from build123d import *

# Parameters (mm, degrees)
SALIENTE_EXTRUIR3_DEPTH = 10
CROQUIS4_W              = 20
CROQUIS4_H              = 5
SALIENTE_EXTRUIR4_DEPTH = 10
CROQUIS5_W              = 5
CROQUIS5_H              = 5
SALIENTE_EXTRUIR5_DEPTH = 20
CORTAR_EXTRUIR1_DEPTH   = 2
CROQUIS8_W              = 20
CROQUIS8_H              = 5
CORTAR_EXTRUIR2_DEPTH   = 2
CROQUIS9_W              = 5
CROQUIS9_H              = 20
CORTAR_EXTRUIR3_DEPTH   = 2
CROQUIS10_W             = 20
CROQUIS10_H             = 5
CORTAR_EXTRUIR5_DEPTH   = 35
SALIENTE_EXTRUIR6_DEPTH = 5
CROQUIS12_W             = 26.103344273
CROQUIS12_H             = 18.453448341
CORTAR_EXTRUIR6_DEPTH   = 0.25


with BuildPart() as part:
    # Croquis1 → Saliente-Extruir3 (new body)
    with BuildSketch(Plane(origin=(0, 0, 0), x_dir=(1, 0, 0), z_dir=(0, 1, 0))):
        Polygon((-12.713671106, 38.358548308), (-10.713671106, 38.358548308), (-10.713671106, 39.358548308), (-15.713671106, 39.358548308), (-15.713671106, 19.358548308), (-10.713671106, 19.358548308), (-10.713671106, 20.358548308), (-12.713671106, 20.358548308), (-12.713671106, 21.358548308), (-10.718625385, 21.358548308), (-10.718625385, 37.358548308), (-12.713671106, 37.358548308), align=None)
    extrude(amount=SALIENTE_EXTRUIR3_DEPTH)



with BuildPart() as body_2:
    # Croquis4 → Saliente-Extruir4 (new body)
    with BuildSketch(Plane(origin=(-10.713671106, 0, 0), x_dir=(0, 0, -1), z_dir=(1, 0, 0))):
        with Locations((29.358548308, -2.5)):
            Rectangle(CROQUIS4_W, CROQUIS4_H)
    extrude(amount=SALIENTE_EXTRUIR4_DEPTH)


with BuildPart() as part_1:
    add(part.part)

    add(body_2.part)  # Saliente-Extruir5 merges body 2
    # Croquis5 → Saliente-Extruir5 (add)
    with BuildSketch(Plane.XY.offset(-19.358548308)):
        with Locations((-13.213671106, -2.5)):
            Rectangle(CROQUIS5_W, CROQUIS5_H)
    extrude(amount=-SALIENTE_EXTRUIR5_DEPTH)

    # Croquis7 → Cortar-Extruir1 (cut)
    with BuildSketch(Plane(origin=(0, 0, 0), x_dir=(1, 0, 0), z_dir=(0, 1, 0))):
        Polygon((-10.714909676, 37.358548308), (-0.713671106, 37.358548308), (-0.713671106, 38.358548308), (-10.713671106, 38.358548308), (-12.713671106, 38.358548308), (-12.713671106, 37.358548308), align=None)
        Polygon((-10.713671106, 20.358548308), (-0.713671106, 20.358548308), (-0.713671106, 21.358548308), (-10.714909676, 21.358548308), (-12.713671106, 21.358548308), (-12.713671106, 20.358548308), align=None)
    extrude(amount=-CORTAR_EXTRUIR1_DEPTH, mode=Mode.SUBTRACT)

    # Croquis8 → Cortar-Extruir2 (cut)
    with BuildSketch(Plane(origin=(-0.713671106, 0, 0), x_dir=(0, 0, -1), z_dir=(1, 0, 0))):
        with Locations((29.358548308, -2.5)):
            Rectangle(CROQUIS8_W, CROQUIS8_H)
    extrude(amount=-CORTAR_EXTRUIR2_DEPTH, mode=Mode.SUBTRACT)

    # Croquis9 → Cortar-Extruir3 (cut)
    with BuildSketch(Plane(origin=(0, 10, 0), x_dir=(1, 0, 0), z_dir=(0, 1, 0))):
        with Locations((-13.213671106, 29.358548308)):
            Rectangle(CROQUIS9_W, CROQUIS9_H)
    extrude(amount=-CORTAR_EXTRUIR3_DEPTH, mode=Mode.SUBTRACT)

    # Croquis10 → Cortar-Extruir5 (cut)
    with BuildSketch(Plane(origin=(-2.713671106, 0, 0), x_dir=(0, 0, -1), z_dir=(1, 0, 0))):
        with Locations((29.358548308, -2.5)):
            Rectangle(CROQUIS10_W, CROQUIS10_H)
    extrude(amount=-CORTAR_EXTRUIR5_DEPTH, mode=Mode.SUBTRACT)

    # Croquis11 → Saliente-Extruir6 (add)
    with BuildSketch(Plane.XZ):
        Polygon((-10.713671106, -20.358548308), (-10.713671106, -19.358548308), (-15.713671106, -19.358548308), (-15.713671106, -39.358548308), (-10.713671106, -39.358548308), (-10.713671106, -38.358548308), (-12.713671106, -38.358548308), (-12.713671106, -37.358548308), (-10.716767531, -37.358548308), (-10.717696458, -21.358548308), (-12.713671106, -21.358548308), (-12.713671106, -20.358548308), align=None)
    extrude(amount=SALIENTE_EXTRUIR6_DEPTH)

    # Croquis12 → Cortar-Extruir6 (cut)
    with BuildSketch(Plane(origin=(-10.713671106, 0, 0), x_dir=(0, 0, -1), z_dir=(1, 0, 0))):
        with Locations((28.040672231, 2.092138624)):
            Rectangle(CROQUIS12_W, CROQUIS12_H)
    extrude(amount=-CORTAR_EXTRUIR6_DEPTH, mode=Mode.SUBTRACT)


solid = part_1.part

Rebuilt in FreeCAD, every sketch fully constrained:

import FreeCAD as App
import Part
import Sketcher
Q = App.Units.Quantity

doc = App.newDocument("Part")
body = doc.addObject("PartDesign::Body", "Body")

# Sketch on XZ plane
sketch1 = body.newObject("Sketcher::SketchObject", "Sketch")
sketch1.AttachmentSupport = (doc.getObject("XZ_Plane"), [""])
sketch1.MapMode = "FlatFace"
sketch1.addGeometry([
    Part.LineSegment(App.Vector(-12.713671, -38.358548, 0), App.Vector(-10.713671, -38.358548, 0)),  # 0
    Part.LineSegment(App.Vector(-10.713671, -38.358548, 0), App.Vector(-10.713671, -39.358548, 0)),  # 1
    Part.LineSegment(App.Vector(-10.713671, -39.358548, 0), App.Vector(-15.713671, -39.358548, 0)),  # 2
    Part.LineSegment(App.Vector(-15.713671, -39.358548, 0), App.Vector(-15.713671, -19.358548, 0)),  # 3
    Part.LineSegment(App.Vector(-15.713671, -19.358548, 0), App.Vector(-10.713671, -19.358548, 0)),  # 4
    Part.LineSegment(App.Vector(-10.713671, -19.358548, 0), App.Vector(-10.713671, -20.358548, 0)),  # 5
    Part.LineSegment(App.Vector(-10.713671, -20.358548, 0), App.Vector(-12.713671, -20.358548, 0)),  # 6
    Part.LineSegment(App.Vector(-12.713671, -20.358548, 0), App.Vector(-12.713671, -21.358548, 0)),  # 7
    Part.LineSegment(App.Vector(-12.713671, -21.358548, 0), App.Vector(-10.718625, -21.358548, 0)),  # 8
    Part.LineSegment(App.Vector(-10.718625, -21.358548, 0), App.Vector(-10.718625, -37.358548, 0)),  # 9
    Part.LineSegment(App.Vector(-10.718625, -37.358548, 0), App.Vector(-12.713671, -37.358548, 0)),  # 10
    Part.LineSegment(App.Vector(-12.713671, -37.358548, 0), App.Vector(-12.713671, -38.358548, 0)),  # 11
], False)
sketch1.addConstraint([
    Sketcher.Constraint("Coincident", 0, 2, 1, 1),
    Sketcher.Constraint("Coincident", 1, 2, 2, 1),
    Sketcher.Constraint("Coincident", 2, 2, 3, 1),
    Sketcher.Constraint("Coincident", 3, 2, 4, 1),
    Sketcher.Constraint("Coincident", 4, 2, 5, 1),
    Sketcher.Constraint("Coincident", 5, 2, 6, 1),
    Sketcher.Constraint("Coincident", 6, 2, 7, 1),
    Sketcher.Constraint("Coincident", 7, 2, 8, 1),
    Sketcher.Constraint("Coincident", 8, 2, 9, 1),
    Sketcher.Constraint("Coincident", 9, 2, 10, 1),
    Sketcher.Constraint("Coincident", 10, 2, 11, 1),
    Sketcher.Constraint("Coincident", 11, 2, 0, 1),
    Sketcher.Constraint("Horizontal", 0),
    Sketcher.Constraint("Vertical", 1),
    Sketcher.Constraint("Horizontal", 2),
    Sketcher.Constraint("Vertical", 3),
    Sketcher.Constraint("Horizontal", 4),
    Sketcher.Constraint("Vertical", 5),
    Sketcher.Constraint("Horizontal", 6),
    Sketcher.Constraint("Vertical", 7),
    Sketcher.Constraint("Horizontal", 8),
    Sketcher.Constraint("Vertical", 9),
    Sketcher.Constraint("Horizontal", 10),
    Sketcher.Constraint("Vertical", 11),
    Sketcher.Constraint("Vertical", 1, 2, 4, 2),
    Sketcher.Constraint("Vertical", 7, 2, 10, 2),
    Sketcher.Constraint("Equal", 1, 5),
    Sketcher.Constraint("Equal", 5, 7),
    Sketcher.Constraint("Equal", 7, 11),
    Sketcher.Constraint("DistanceX", 0, 1, 0, 2, Q("2 mm")),
    Sketcher.Constraint("DistanceX", 2, 2, 2, 1, Q("5 mm")),
    Sketcher.Constraint("DistanceY", 1, 2, 1, 1, Q("1 mm")),
    Sketcher.Constraint("DistanceY", 3, 1, 3, 2, Q("20 mm")),
    Sketcher.Constraint("DistanceX", 8, 1, 8, 2, Q("1.995046 mm")),
    Sketcher.Constraint("DistanceX", 0, 2, -1, 1, Q("10.713671 mm")),
    Sketcher.Constraint("DistanceY", 0, 2, -1, 1, Q("38.358548 mm")),
])
pad1 = body.newObject("PartDesign::Pad", "Pad")
pad1.Profile = sketch1
pad1.Length = 10
pad1.Reversed = True
body2 = doc.addObject("PartDesign::Body", "Body001")

# Sketch on YZ plane
sketch2 = body2.newObject("Sketcher::SketchObject", "Sketch001")
sketch2.AttachmentSupport = (doc.getObject("YZ_Plane001"), [""])
sketch2.MapMode = "FlatFace"
sketch2.AttachmentOffset = App.Placement(App.Vector(0, 0, -10.713671), App.Rotation())
sketch2.addGeometry([
    Part.LineSegment(App.Vector(0, -19.358548, 0), App.Vector(-5, -19.358548, 0)),
    Part.LineSegment(App.Vector(-5, -19.358548, 0), App.Vector(-5, -39.358548, 0)),
    Part.LineSegment(App.Vector(-5, -39.358548, 0), App.Vector(0, -39.358548, 0)),
    Part.LineSegment(App.Vector(0, -39.358548, 0), App.Vector(0, -19.358548, 0)),
], False)
sketch2.addConstraint([
    Sketcher.Constraint("Coincident", 0, 2, 1, 1),
    Sketcher.Constraint("Coincident", 1, 2, 2, 1),
    Sketcher.Constraint("Coincident", 2, 2, 3, 1),
    Sketcher.Constraint("Coincident", 3, 2, 0, 1),
    Sketcher.Constraint("Horizontal", 0),
    Sketcher.Constraint("Vertical", 1),
    Sketcher.Constraint("Horizontal", 2),
    Sketcher.Constraint("Vertical", 3),
    Sketcher.Constraint("PointOnObject", 2, 2, -2),
    Sketcher.Constraint("DistanceX", 0, 2, 0, 1, Q("5 mm")),
    Sketcher.Constraint("DistanceY", 1, 2, 1, 1, Q("20 mm")),
    Sketcher.Constraint("DistanceY", 0, 2, -1, 1, Q("19.358548 mm")),
])
pad2 = body2.newObject("PartDesign::Pad", "Pad001")
pad2.Profile = sketch2
pad2.Length = 10
body.AllowCompound = True
doc.recompute()

boolean = body.newObject("PartDesign::Boolean", "Boolean")
boolean.Type = "Fuse"
boolean.addObjects([body2])

# Sketch on XY plane
sketch3 = body.newObject("Sketcher::SketchObject", "Sketch002")
sketch3.AttachmentSupport = (doc.getObject("XY_Plane"), [""])
sketch3.MapMode = "FlatFace"
sketch3.AttachmentOffset = App.Placement(App.Vector(0, 0, -19.358548), App.Rotation())
sketch3.addGeometry([
    Part.LineSegment(App.Vector(-15.713671, 0, 0), App.Vector(-15.713671, -5, 0)),
    Part.LineSegment(App.Vector(-15.713671, -5, 0), App.Vector(-10.713671, -5, 0)),
    Part.LineSegment(App.Vector(-10.713671, -5, 0), App.Vector(-10.713671, 0, 0)),
    Part.LineSegment(App.Vector(-10.713671, 0, 0), App.Vector(-15.713671, 0, 0)),
], False)
sketch3.addConstraint([
    Sketcher.Constraint("Coincident", 0, 2, 1, 1),
    Sketcher.Constraint("Coincident", 1, 2, 2, 1),
    Sketcher.Constraint("Coincident", 2, 2, 3, 1),
    Sketcher.Constraint("Coincident", 3, 2, 0, 1),
    Sketcher.Constraint("Vertical", 0),
    Sketcher.Constraint("Horizontal", 1),
    Sketcher.Constraint("Vertical", 2),
    Sketcher.Constraint("Horizontal", 3),
    Sketcher.Constraint("PointOnObject", 2, 2, -1),
    Sketcher.Constraint("Equal", 3, 0),
    Sketcher.Constraint("DistanceX", 1, 1, 1, 2, Q("5 mm")),
    Sketcher.Constraint("DistanceX", 0, 2, -1, 1, Q("15.713671 mm")),
])
pad3 = body.newObject("PartDesign::Pad", "Pad002")
pad3.Profile = sketch3
pad3.Length = 20
pad3.Reversed = True

# Sketch on XZ plane
sketch4 = body.newObject("Sketcher::SketchObject", "Sketch003")
sketch4.AttachmentSupport = (doc.getObject("XZ_Plane"), [""])
sketch4.MapMode = "FlatFace"
sketch4.addGeometry([
    Part.LineSegment(App.Vector(-0.713671, -37.358548, 0), App.Vector(-0.713671, -38.358548, 0)),  # 0
    Part.LineSegment(App.Vector(-0.713671, -38.358548, 0), App.Vector(-12.713671, -38.358548, 0)),  # 1
    Part.LineSegment(App.Vector(-12.713671, -38.358548, 0), App.Vector(-12.713671, -37.358548, 0)),  # 2
    Part.LineSegment(App.Vector(-12.713671, -37.358548, 0), App.Vector(-0.713671, -37.358548, 0)),  # 3
    Part.LineSegment(App.Vector(-0.713671, -20.358548, 0), App.Vector(-0.713671, -21.358548, 0)),  # 4
    Part.LineSegment(App.Vector(-0.713671, -21.358548, 0), App.Vector(-12.713671, -21.358548, 0)),  # 5
    Part.LineSegment(App.Vector(-12.713671, -21.358548, 0), App.Vector(-12.713671, -20.358548, 0)),  # 6
    Part.LineSegment(App.Vector(-12.713671, -20.358548, 0), App.Vector(-0.713671, -20.358548, 0)),  # 7
], False)
sketch4.addConstraint([
    Sketcher.Constraint("Coincident", 0, 2, 1, 1),
    Sketcher.Constraint("Coincident", 1, 2, 2, 1),
    Sketcher.Constraint("Coincident", 2, 2, 3, 1),
    Sketcher.Constraint("Coincident", 3, 2, 0, 1),
    Sketcher.Constraint("Coincident", 4, 2, 5, 1),
    Sketcher.Constraint("Coincident", 5, 2, 6, 1),
    Sketcher.Constraint("Coincident", 6, 2, 7, 1),
    Sketcher.Constraint("Coincident", 7, 2, 4, 1),
    Sketcher.Constraint("Vertical", 0),
    Sketcher.Constraint("Horizontal", 1),
    Sketcher.Constraint("Vertical", 2),
    Sketcher.Constraint("Horizontal", 3),
    Sketcher.Constraint("Vertical", 4),
    Sketcher.Constraint("Horizontal", 5),
    Sketcher.Constraint("Vertical", 6),
    Sketcher.Constraint("Horizontal", 7),
    Sketcher.Constraint("Vertical", 3, 2, 4, 2),
    Sketcher.Constraint("Vertical", 2, 2, 5, 2),
    Sketcher.Constraint("Equal", 2, 4),
    Sketcher.Constraint("DistanceX", 1, 2, 1, 1, Q("12 mm")),
    Sketcher.Constraint("DistanceY", 0, 2, 0, 1, Q("1 mm")),
    Sketcher.Constraint("DistanceY", 3, 2, 4, 2, Q("16 mm")),
    Sketcher.Constraint("DistanceX", 0, 2, -1, 1, Q("0.713671 mm")),
    Sketcher.Constraint("DistanceY", 0, 2, -1, 1, Q("38.358548 mm")),
])
pocket1 = body.newObject("PartDesign::Pocket", "Pocket")
pocket1.Profile = sketch4
pocket1.Length = 2
pocket1.Reversed = True

# Sketch on YZ plane
sketch5 = body.newObject("Sketcher::SketchObject", "Sketch004")
sketch5.AttachmentSupport = (doc.getObject("YZ_Plane"), [""])
sketch5.MapMode = "FlatFace"
sketch5.AttachmentOffset = App.Placement(App.Vector(0, 0, -0.713671), App.Rotation())
sketch5.addGeometry([
    Part.LineSegment(App.Vector(0, -19.358548, 0), App.Vector(-5, -19.358548, 0)),
    Part.LineSegment(App.Vector(-5, -19.358548, 0), App.Vector(-5, -39.358548, 0)),
    Part.LineSegment(App.Vector(-5, -39.358548, 0), App.Vector(0, -39.358548, 0)),
    Part.LineSegment(App.Vector(0, -39.358548, 0), App.Vector(0, -19.358548, 0)),
], False)
sketch5.addConstraint([
    Sketcher.Constraint("Coincident", 0, 2, 1, 1),
    Sketcher.Constraint("Coincident", 1, 2, 2, 1),
    Sketcher.Constraint("Coincident", 2, 2, 3, 1),
    Sketcher.Constraint("Coincident", 3, 2, 0, 1),
    Sketcher.Constraint("Horizontal", 0),
    Sketcher.Constraint("Vertical", 1),
    Sketcher.Constraint("Horizontal", 2),
    Sketcher.Constraint("Vertical", 3),
    Sketcher.Constraint("PointOnObject", 2, 2, -2),
    Sketcher.Constraint("DistanceX", 0, 2, 0, 1, Q("5 mm")),
    Sketcher.Constraint("DistanceY", 1, 2, 1, 1, Q("20 mm")),
    Sketcher.Constraint("DistanceY", 0, 2, -1, 1, Q("19.358548 mm")),
])
pocket2 = body.newObject("PartDesign::Pocket", "Pocket001")
pocket2.Profile = sketch5
pocket2.Length = 2

# Sketch on XZ plane
sketch6 = body.newObject("Sketcher::SketchObject", "Sketch005")
sketch6.AttachmentSupport = (doc.getObject("XZ_Plane"), [""])
sketch6.MapMode = "FlatFace"
sketch6.AttachmentOffset = App.Placement(App.Vector(0, 0, -10), App.Rotation())
sketch6.addGeometry([
    Part.LineSegment(App.Vector(-15.713671, -39.358548, 0), App.Vector(-15.713671, -19.358548, 0)),
    Part.LineSegment(App.Vector(-15.713671, -19.358548, 0), App.Vector(-10.713671, -19.358548, 0)),
    Part.LineSegment(App.Vector(-10.713671, -19.358548, 0), App.Vector(-10.713671, -39.358548, 0)),
    Part.LineSegment(App.Vector(-10.713671, -39.358548, 0), App.Vector(-15.713671, -39.358548, 0)),
], False)
sketch6.addConstraint([
    Sketcher.Constraint("Coincident", 0, 2, 1, 1),
    Sketcher.Constraint("Coincident", 1, 2, 2, 1),
    Sketcher.Constraint("Coincident", 2, 2, 3, 1),
    Sketcher.Constraint("Coincident", 3, 2, 0, 1),
    Sketcher.Constraint("Vertical", 0),
    Sketcher.Constraint("Horizontal", 1),
    Sketcher.Constraint("Vertical", 2),
    Sketcher.Constraint("Horizontal", 3),
    Sketcher.Constraint("DistanceX", 1, 1, 1, 2, Q("5 mm")),
    Sketcher.Constraint("DistanceY", 0, 1, 0, 2, Q("20 mm")),
    Sketcher.Constraint("DistanceX", 0, 2, -1, 1, Q("15.713671 mm")),
    Sketcher.Constraint("DistanceY", 0, 2, -1, 1, Q("19.358548 mm")),
])
pocket3 = body.newObject("PartDesign::Pocket", "Pocket002")
pocket3.Profile = sketch6
pocket3.Length = 2
pocket3.Reversed = True

# Sketch on YZ plane
sketch7 = body.newObject("Sketcher::SketchObject", "Sketch006")
sketch7.AttachmentSupport = (doc.getObject("YZ_Plane"), [""])
sketch7.MapMode = "FlatFace"
sketch7.AttachmentOffset = App.Placement(App.Vector(0, 0, -2.713671), App.Rotation())
sketch7.addGeometry([
    Part.LineSegment(App.Vector(0, -19.358548, 0), App.Vector(-5, -19.358548, 0)),
    Part.LineSegment(App.Vector(-5, -19.358548, 0), App.Vector(-5, -39.358548, 0)),
    Part.LineSegment(App.Vector(-5, -39.358548, 0), App.Vector(0, -39.358548, 0)),
    Part.LineSegment(App.Vector(0, -39.358548, 0), App.Vector(0, -19.358548, 0)),
], False)
sketch7.addConstraint([
    Sketcher.Constraint("Coincident", 0, 2, 1, 1),
    Sketcher.Constraint("Coincident", 1, 2, 2, 1),
    Sketcher.Constraint("Coincident", 2, 2, 3, 1),
    Sketcher.Constraint("Coincident", 3, 2, 0, 1),
    Sketcher.Constraint("Horizontal", 0),
    Sketcher.Constraint("Vertical", 1),
    Sketcher.Constraint("Horizontal", 2),
    Sketcher.Constraint("Vertical", 3),
    Sketcher.Constraint("PointOnObject", 2, 2, -2),
    Sketcher.Constraint("DistanceX", 0, 2, 0, 1, Q("5 mm")),
    Sketcher.Constraint("DistanceY", 1, 2, 1, 1, Q("20 mm")),
    Sketcher.Constraint("DistanceY", 0, 2, -1, 1, Q("19.358548 mm")),
])
pocket4 = body.newObject("PartDesign::Pocket", "Pocket003")
pocket4.Profile = sketch7
pocket4.Length = 35

# Sketch on XZ plane
sketch8 = body.newObject("Sketcher::SketchObject", "Sketch007")
sketch8.AttachmentSupport = (doc.getObject("XZ_Plane"), [""])
sketch8.MapMode = "FlatFace"
sketch8.addGeometry([
    Part.LineSegment(App.Vector(-10.713671, -20.358548, 0), App.Vector(-10.713671, -19.358548, 0)),  # 0
    Part.LineSegment(App.Vector(-10.713671, -19.358548, 0), App.Vector(-15.713671, -19.358548, 0)),  # 1
    Part.LineSegment(App.Vector(-15.713671, -19.358548, 0), App.Vector(-15.713671, -39.358548, 0)),  # 2
    Part.LineSegment(App.Vector(-15.713671, -39.358548, 0), App.Vector(-10.713671, -39.358548, 0)),  # 3
    Part.LineSegment(App.Vector(-10.713671, -39.358548, 0), App.Vector(-10.713671, -38.358548, 0)),  # 4
    Part.LineSegment(App.Vector(-10.713671, -38.358548, 0), App.Vector(-12.713671, -38.358548, 0)),  # 5
    Part.LineSegment(App.Vector(-12.713671, -38.358548, 0), App.Vector(-12.713671, -37.358548, 0)),  # 6
    Part.LineSegment(App.Vector(-12.713671, -37.358548, 0), App.Vector(-10.716768, -37.358548, 0)),  # 7
    Part.LineSegment(App.Vector(-10.716768, -37.358548, 0), App.Vector(-10.717696, -21.358548, 0)),  # 8
    Part.LineSegment(App.Vector(-10.717696, -21.358548, 0), App.Vector(-12.713671, -21.358548, 0)),  # 9
    Part.LineSegment(App.Vector(-12.713671, -21.358548, 0), App.Vector(-12.713671, -20.358548, 0)),  # 10
    Part.LineSegment(App.Vector(-12.713671, -20.358548, 0), App.Vector(-10.713671, -20.358548, 0)),  # 11
], False)
sketch8.addConstraint([
    Sketcher.Constraint("Coincident", 0, 2, 1, 1),
    Sketcher.Constraint("Coincident", 1, 2, 2, 1),
    Sketcher.Constraint("Coincident", 2, 2, 3, 1),
    Sketcher.Constraint("Coincident", 3, 2, 4, 1),
    Sketcher.Constraint("Coincident", 4, 2, 5, 1),
    Sketcher.Constraint("Coincident", 5, 2, 6, 1),
    Sketcher.Constraint("Coincident", 6, 2, 7, 1),
    Sketcher.Constraint("Coincident", 7, 2, 8, 1),
    Sketcher.Constraint("Coincident", 8, 2, 9, 1),
    Sketcher.Constraint("Coincident", 9, 2, 10, 1),
    Sketcher.Constraint("Coincident", 10, 2, 11, 1),
    Sketcher.Constraint("Coincident", 11, 2, 0, 1),
    Sketcher.Constraint("Vertical", 0),
    Sketcher.Constraint("Horizontal", 1),
    Sketcher.Constraint("Vertical", 2),
    Sketcher.Constraint("Horizontal", 3),
    Sketcher.Constraint("Vertical", 4),
    Sketcher.Constraint("Horizontal", 5),
    Sketcher.Constraint("Vertical", 6),
    Sketcher.Constraint("Horizontal", 7),
    Sketcher.Constraint("Horizontal", 9),
    Sketcher.Constraint("Vertical", 10),
    Sketcher.Constraint("Horizontal", 11),
    Sketcher.Constraint("Vertical", 0, 2, 3, 2),
    Sketcher.Constraint("Vertical", 6, 2, 9, 2),
    Sketcher.Constraint("Equal", 0, 4),
    Sketcher.Constraint("Equal", 4, 6),
    Sketcher.Constraint("Equal", 6, 10),
    Sketcher.Constraint("DistanceX", 1, 2, 1, 1, Q("5 mm")),
    Sketcher.Constraint("DistanceX", 5, 2, 5, 1, Q("2 mm")),
    Sketcher.Constraint("DistanceY", 0, 1, 0, 2, Q("1 mm")),
    Sketcher.Constraint("DistanceY", 2, 2, 2, 1, Q("20 mm")),
    Sketcher.Constraint("DistanceX", 7, 1, 7, 2, Q("1.996904 mm")),
    Sketcher.Constraint("DistanceX", 9, 2, 9, 1, Q("1.995975 mm")),
    Sketcher.Constraint("DistanceX", 0, 2, -1, 1, Q("10.713671 mm")),
    Sketcher.Constraint("DistanceY", 0, 2, -1, 1, Q("19.358548 mm")),
])
pad4 = body.newObject("PartDesign::Pad", "Pad003")
pad4.Profile = sketch8
pad4.Length = 5

# Sketch on YZ plane
sketch9 = body.newObject("Sketcher::SketchObject", "Sketch008")
sketch9.AttachmentSupport = (doc.getObject("YZ_Plane"), [""])
sketch9.MapMode = "FlatFace"
sketch9.AttachmentOffset = App.Placement(App.Vector(0, 0, -10.713671), App.Rotation())
sketch9.addGeometry([
    Part.LineSegment(App.Vector(11.318863, -14.989, 0), App.Vector(-7.134586, -14.989, 0)),
    Part.LineSegment(App.Vector(-7.134586, -14.989, 0), App.Vector(-7.134586, -41.092344, 0)),
    Part.LineSegment(App.Vector(-7.134586, -41.092344, 0), App.Vector(11.318863, -41.092344, 0)),
    Part.LineSegment(App.Vector(11.318863, -41.092344, 0), App.Vector(11.318863, -14.989, 0)),
], False)
sketch9.addConstraint([
    Sketcher.Constraint("Coincident", 0, 2, 1, 1),
    Sketcher.Constraint("Coincident", 1, 2, 2, 1),
    Sketcher.Constraint("Coincident", 2, 2, 3, 1),
    Sketcher.Constraint("Coincident", 3, 2, 0, 1),
    Sketcher.Constraint("Horizontal", 0),
    Sketcher.Constraint("Vertical", 1),
    Sketcher.Constraint("Horizontal", 2),
    Sketcher.Constraint("Vertical", 3),
    Sketcher.Constraint("DistanceY", 0, 2, -1, 1, Q("14.989 mm")),
    Sketcher.Constraint("DistanceX", 0, 2, 0, 1, Q("18.453448 mm")),
    Sketcher.Constraint("DistanceY", 1, 2, 1, 1, Q("26.103344 mm")),
    Sketcher.Constraint("DistanceX", 0, 2, -1, 1, Q("7.134586 mm")),
])
pocket5 = body.newObject("PartDesign::Pocket", "Pocket004")
pocket5.Profile = sketch9
pocket5.Length = 0.25

doc.recompute()
